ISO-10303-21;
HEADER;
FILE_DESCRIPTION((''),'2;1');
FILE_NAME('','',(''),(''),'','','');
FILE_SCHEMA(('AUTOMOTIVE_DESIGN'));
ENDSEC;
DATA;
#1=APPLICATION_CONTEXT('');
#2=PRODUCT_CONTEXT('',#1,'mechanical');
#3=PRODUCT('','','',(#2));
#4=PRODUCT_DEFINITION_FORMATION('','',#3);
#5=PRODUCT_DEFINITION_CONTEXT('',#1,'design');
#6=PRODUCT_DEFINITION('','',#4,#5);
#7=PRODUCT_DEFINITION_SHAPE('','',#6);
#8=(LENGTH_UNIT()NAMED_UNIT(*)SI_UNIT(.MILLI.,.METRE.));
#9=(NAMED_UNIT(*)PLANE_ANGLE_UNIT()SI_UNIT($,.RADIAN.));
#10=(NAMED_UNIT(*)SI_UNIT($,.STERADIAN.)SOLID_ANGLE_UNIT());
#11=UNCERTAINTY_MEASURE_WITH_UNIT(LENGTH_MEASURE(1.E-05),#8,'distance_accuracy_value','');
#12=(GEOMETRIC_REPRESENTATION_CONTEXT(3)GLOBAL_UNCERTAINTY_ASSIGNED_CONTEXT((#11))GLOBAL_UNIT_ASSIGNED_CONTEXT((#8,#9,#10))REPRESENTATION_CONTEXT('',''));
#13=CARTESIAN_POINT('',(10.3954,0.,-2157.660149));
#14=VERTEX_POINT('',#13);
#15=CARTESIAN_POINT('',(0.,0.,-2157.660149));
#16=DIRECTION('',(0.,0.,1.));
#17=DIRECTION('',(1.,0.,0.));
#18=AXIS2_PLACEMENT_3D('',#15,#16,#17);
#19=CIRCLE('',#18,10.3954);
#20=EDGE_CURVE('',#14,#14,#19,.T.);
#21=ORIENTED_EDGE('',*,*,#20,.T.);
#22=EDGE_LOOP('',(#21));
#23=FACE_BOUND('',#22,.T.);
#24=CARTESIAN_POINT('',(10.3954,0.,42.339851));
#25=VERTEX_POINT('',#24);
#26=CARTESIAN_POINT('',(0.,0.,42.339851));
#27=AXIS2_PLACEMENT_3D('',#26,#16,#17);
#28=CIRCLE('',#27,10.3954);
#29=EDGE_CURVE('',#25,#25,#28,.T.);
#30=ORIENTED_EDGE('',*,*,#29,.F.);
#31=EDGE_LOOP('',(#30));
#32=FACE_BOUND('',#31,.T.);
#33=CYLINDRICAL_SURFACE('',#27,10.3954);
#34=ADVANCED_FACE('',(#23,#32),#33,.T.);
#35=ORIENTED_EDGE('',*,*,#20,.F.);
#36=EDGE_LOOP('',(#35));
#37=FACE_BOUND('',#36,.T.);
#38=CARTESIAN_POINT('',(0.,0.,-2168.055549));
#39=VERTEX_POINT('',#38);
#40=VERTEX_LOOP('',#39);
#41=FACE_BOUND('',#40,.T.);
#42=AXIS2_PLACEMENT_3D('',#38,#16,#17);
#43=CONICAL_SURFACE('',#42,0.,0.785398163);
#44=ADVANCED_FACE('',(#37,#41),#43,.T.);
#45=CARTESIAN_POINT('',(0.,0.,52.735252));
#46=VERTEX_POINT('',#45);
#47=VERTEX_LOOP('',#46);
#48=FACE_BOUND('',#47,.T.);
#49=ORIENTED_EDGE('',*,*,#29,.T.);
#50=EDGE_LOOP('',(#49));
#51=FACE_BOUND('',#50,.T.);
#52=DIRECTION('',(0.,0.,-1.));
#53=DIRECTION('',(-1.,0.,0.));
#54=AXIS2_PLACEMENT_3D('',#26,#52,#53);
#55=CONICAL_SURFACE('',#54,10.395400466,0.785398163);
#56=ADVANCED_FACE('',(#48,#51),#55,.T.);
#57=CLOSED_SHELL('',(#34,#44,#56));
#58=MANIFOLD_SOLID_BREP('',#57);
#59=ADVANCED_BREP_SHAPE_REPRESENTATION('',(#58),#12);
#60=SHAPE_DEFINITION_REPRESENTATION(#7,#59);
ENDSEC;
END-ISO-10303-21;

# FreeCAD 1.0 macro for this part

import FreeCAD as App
import Part
import Sketcher
Q = App.Units.Quantity


def add_polygon(sketch, points):
    """Adds a closed chain of lines whose ends are joined by coincident constraints."""
    first, n = sketch.GeometryCount, len(points)
    for a, b in zip(points, points[1:] + points[:1]):
        sketch.addGeometry(Part.LineSegment(App.Vector(*a, 0), App.Vector(*b, 0)), False)
    for i in range(n):
        sketch.addConstraint(Sketcher.Constraint("Coincident", first + i, 2, first + (i + 1) % n, 1))

doc = App.newDocument("Part")
body = doc.addObject("PartDesign::Body", "Body")

# Sketch on YZ plane
sketch1 = body.newObject("Sketcher::SketchObject", "Sketch")
sketch1.AttachmentSupport = (doc.getObject("YZ_Plane"), [""])
sketch1.MapMode = "FlatFace"
add_polygon(sketch1, [(10.3954, 42.339851), (0, 52.735252), (0, -2168.055549), (10.3954, -2157.660149)])  # lines 0-3
sketch1.addConstraint(Sketcher.Constraint("Vertical", 1))
sketch1.addConstraint(Sketcher.Constraint("Vertical", 3))
sketch1.addConstraint(Sketcher.Constraint("PointOnObject", 0, 2, -2))
sketch1.addConstraint(Sketcher.Constraint("Perpendicular", 0, 2))
sketch1.addConstraint(Sketcher.Constraint("Equal", 0, 2))
sketch1.addConstraint(Sketcher.Constraint("DistanceY", 3, 1, 3, 2, Q("2200 mm")))
sketch1.addConstraint(Sketcher.Constraint("DistanceY", 1, 2, 1, 1, Q("2220.790801 mm")))
sketch1.addConstraint(Sketcher.Constraint("DistanceY", -1, 1, 0, 2, Q("52.735252 mm")))
revolution = body.newObject("PartDesign::Revolution", "Revolution")
revolution.Profile = sketch1
revolution.ReferenceAxis = (sketch1, ["V_Axis"])
revolution.Angle = 360

doc.recompute()
